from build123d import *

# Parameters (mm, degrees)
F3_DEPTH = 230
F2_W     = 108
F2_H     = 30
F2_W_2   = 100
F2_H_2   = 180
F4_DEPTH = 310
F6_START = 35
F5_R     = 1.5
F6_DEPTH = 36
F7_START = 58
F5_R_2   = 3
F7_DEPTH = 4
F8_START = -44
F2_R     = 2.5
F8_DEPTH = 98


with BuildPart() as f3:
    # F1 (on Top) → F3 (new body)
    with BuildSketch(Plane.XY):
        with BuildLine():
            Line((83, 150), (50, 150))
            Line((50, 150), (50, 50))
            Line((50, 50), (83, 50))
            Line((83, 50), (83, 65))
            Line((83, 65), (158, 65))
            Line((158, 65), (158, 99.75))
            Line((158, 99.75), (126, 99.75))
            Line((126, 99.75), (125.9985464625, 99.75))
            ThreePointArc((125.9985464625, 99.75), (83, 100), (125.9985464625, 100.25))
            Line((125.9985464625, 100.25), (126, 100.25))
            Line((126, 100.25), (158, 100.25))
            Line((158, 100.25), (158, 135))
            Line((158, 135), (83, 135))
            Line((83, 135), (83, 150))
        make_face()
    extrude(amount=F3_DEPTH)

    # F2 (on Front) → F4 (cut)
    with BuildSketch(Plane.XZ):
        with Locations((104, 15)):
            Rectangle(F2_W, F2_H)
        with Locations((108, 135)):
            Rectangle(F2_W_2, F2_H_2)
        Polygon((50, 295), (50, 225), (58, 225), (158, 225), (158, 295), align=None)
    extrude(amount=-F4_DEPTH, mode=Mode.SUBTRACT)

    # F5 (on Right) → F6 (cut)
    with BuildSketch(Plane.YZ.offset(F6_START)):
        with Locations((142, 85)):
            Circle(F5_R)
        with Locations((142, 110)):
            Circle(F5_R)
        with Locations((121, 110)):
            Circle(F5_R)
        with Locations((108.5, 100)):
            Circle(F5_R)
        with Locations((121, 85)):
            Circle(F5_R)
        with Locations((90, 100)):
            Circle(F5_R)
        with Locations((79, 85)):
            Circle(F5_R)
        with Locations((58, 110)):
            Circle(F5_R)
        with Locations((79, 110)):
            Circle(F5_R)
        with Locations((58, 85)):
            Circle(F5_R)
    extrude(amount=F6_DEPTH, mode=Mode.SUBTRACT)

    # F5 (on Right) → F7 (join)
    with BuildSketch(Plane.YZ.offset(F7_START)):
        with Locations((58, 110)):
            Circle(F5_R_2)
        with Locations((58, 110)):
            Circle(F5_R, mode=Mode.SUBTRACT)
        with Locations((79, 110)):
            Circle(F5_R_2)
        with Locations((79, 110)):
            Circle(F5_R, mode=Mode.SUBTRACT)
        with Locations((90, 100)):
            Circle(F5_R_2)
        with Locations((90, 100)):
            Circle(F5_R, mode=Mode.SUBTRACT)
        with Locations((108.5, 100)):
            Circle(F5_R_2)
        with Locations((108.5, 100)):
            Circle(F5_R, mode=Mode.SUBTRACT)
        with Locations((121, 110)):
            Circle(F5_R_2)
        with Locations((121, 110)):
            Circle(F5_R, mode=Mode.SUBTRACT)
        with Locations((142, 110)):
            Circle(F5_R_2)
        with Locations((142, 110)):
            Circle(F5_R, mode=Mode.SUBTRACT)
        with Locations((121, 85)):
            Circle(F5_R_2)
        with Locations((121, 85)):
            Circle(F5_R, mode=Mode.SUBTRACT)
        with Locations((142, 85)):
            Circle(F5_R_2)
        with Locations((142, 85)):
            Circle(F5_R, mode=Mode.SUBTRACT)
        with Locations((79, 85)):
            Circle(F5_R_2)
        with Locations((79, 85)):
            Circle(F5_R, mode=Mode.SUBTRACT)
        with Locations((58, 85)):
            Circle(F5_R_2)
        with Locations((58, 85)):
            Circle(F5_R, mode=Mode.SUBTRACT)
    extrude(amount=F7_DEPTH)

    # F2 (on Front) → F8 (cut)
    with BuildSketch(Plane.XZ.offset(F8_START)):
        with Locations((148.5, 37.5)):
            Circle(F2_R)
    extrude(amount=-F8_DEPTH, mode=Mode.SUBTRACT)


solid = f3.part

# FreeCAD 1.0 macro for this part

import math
import FreeCAD as App
import Part
import Sketcher

V = App.Vector

doc = App.newDocument("Part")
body = doc.addObject("PartDesign::Body", "Body")

# Sketch on XY plane
sketch1 = body.newObject("Sketcher::SketchObject", "Sketch")
sketch1.AttachmentSupport = (doc.getObject("XY_Plane"), [""])
sketch1.MapMode = "FlatFace"
sketch1.addGeometry([
    Part.LineSegment(V(83, 150, 0), V(50, 150, 0)),  # 0
    Part.LineSegment(V(50, 150, 0), V(50, 50, 0)),  # 1
    Part.LineSegment(V(50, 50, 0), V(83, 50, 0)),  # 2
    Part.LineSegment(V(83, 50, 0), V(83, 65, 0)),  # 3
    Part.LineSegment(V(83, 65, 0), V(158, 65, 0)),  # 4
    Part.LineSegment(V(158, 65, 0), V(158, 99.75, 0)),  # 5
    Part.LineSegment(V(158, 99.75, 0), V(125.998546, 99.75, 0)),  # 6
    Part.ArcOfCircle(Part.Circle(V(104.5, 100, 0), V(0, 0, 1), 21.5), math.radians(0.666245), math.radians(359.333755)),  # 7
    Part.LineSegment(V(125.998546, 100.25, 0), V(158, 100.25, 0)),  # 8
    Part.LineSegment(V(158, 100.25, 0), V(158, 135, 0)),  # 9
    Part.LineSegment(V(158, 135, 0), V(83, 135, 0)),  # 10
    Part.LineSegment(V(83, 135, 0), V(83, 150, 0)),  # 11
], False)
sketch1.addConstraint([
    Sketcher.Constraint("Coincident", 0, 2, 1, 1),
    Sketcher.Constraint("Coincident", 1, 2, 2, 1),
    Sketcher.Constraint("Coincident", 2, 2, 3, 1),
    Sketcher.Constraint("Coincident", 3, 2, 4, 1),
    Sketcher.Constraint("Coincident", 4, 2, 5, 1),
    Sketcher.Constraint("Coincident", 5, 2, 6, 1),
    Sketcher.Constraint("Coincident", 6, 2, 7, 2),
    Sketcher.Constraint("Coincident", 7, 1, 8, 1),
    Sketcher.Constraint("Coincident", 8, 2, 9, 1),
    Sketcher.Constraint("Coincident", 9, 2, 10, 1),
    Sketcher.Constraint("Coincident", 10, 2, 11, 1),
    Sketcher.Constraint("Coincident", 11, 2, 0, 1),
    Sketcher.Constraint("Horizontal", 0),
    Sketcher.Constraint("Vertical", 1),
    Sketcher.Constraint("Horizontal", 2),
    Sketcher.Constraint("Vertical", 3),
    Sketcher.Constraint("Horizontal", 4),
    Sketcher.Constraint("Vertical", 5),
    Sketcher.Constraint("Horizontal", 6),
    Sketcher.Constraint("Horizontal", 8),
    Sketcher.Constraint("Vertical", 9),
    Sketcher.Constraint("Horizontal", 10),
    Sketcher.Constraint("Vertical", 11),
    Sketcher.Constraint("Vertical", 6, 2, 7, 1),
    Sketcher.Constraint("Vertical", 5, 2, 8, 2),
    Sketcher.Constraint("Vertical", 3, 2, 10, 2),
    Sketcher.Constraint("Equal", 5, 9),
    Sketcher.Constraint("Equal", 3, 11),
    Sketcher.Constraint("Radius", 7, 21.5),
    Sketcher.Constraint("DistanceX", 0, 2, 0, 1, 33.0),
    Sketcher.Constraint("DistanceX", 4, 1, 4, 2, 75.0),
    Sketcher.Constraint("DistanceY", 1, 2, 1, 1, 100.0),
    Sketcher.Constraint("DistanceY", 3, 1, 3, 2, 15.0),
    Sketcher.Constraint("DistanceY", -1, 1, 7, 3, 100.0),
    Sketcher.Constraint("DistanceX", -1, 1, 0, 2, 50.0),
    Sketcher.Constraint("DistanceY", 5, 1, 5, 2, 34.75),
    Sketcher.Constraint("DistanceX", -1, 1, 7, 3, 104.5),
])
pad1 = body.newObject("PartDesign::Pad", "Pad")
pad1.Profile = sketch1
pad1.Length = 230

# Sketch on XZ plane
sketch2 = body.newObject("Sketcher::SketchObject", "Sketch001")
sketch2.AttachmentSupport = (doc.getObject("XZ_Plane"), [""])
sketch2.MapMode = "FlatFace"
sketch2.addGeometry([
    Part.LineSegment(V(50, 30, 0), V(50, 0, 0)),  # 0
    Part.LineSegment(V(50, 0, 0), V(158, 0, 0)),  # 1
    Part.LineSegment(V(158, 0, 0), V(158, 30, 0)),  # 2
    Part.LineSegment(V(158, 30, 0), V(50, 30, 0)),  # 3
    Part.LineSegment(V(58, 225, 0), V(58, 45, 0)),  # 4
    Part.LineSegment(V(58, 45, 0), V(158, 45, 0)),  # 5
    Part.LineSegment(V(158, 45, 0), V(158, 295, 0)),  # 6
    Part.LineSegment(V(158, 295, 0), V(50, 295, 0)),  # 7
    Part.LineSegment(V(50, 295, 0), V(50, 225, 0)),  # 8
    Part.LineSegment(V(50, 225, 0), V(58, 225, 0)),  # 9
], False)
sketch2.addConstraint([
    Sketcher.Constraint("Coincident", 0, 2, 1, 1),
    Sketcher.Constraint("Coincident", 1, 2, 2, 1),
    Sketcher.Constraint("Coincident", 2, 2, 3, 1),
    Sketcher.Constraint("Coincident", 3, 2, 0, 1),
    Sketcher.Constraint("Coincident", 4, 2, 5, 1),
    Sketcher.Constraint("Coincident", 5, 2, 6, 1),
    Sketcher.Constraint("Coincident", 6, 2, 7, 1),
    Sketcher.Constraint("Coincident", 7, 2, 8, 1),
    Sketcher.Constraint("Coincident", 8, 2, 9, 1),
    Sketcher.Constraint("Coincident", 9, 2, 4, 1),
    Sketcher.Constraint("Vertical", 0),
    Sketcher.Constraint("Horizontal", 1),
    Sketcher.Constraint("Vertical", 2),
    Sketcher.Constraint("Horizontal", 3),
    Sketcher.Constraint("Vertical", 4),
    Sketcher.Constraint("Horizontal", 5),
    Sketcher.Constraint("Vertical", 6),
    Sketcher.Constraint("Horizontal", 7),
    Sketcher.Constraint("Vertical", 8),
    Sketcher.Constraint("Horizontal", 9),
    Sketcher.Constraint("PointOnObject", 0, 2, -1),
    Sketcher.Constraint("Vertical", 2, 2, 5, 2),
    Sketcher.Constraint("Vertical", 3, 2, 7, 2),
    Sketcher.Constraint("DistanceX", 1, 1, 1, 2, 108.0),
    Sketcher.Constraint("DistanceX", 5, 1, 5, 2, 100.0),
    Sketcher.Constraint("DistanceY", 0, 2, 0, 1, 30.0),
    Sketcher.Constraint("DistanceY", 4, 2, 4, 1, 180.0),
    Sketcher.Constraint("DistanceY", 6, 1, 6, 2, 250.0),
    Sketcher.Constraint("DistanceX", -1, 1, 0, 2, 50.0),
    Sketcher.Constraint("DistanceY", -1, 1, 4, 2, 45.0),
])
pocket1 = body.newObject("PartDesign::Pocket", "Pocket")
pocket1.Profile = sketch2
pocket1.Length = 310

# Sketch on YZ plane
sketch3 = body.newObject("Sketcher::SketchObject", "Sketch002")
sketch3.AttachmentSupport = (doc.getObject("YZ_Plane"), [""])
sketch3.MapMode = "FlatFace"
sketch3.AttachmentOffset = App.Placement(V(0, 0, 35), App.Rotation())
sketch3.addGeometry([
    Part.Circle(V(142, 85, 0), V(0, 0, 1), 1.5),  # 0
    Part.Circle(V(142, 110, 0), V(0, 0, 1), 1.5),  # 1
    Part.Circle(V(121, 110, 0), V(0, 0, 1), 1.5),  # 2
    Part.Circle(V(108.5, 100, 0), V(0, 0, 1), 1.5),  # 3
    Part.Circle(V(121, 85, 0), V(0, 0, 1), 1.5),  # 4
    Part.Circle(V(90, 100, 0), V(0, 0, 1), 1.5),  # 5
    Part.Circle(V(79, 85, 0), V(0, 0, 1), 1.5),  # 6
    Part.Circle(V(58, 110, 0), V(0, 0, 1), 1.5),  # 7
    Part.Circle(V(79, 110, 0), V(0, 0, 1), 1.5),  # 8
    Part.Circle(V(58, 85, 0), V(0, 0, 1), 1.5),  # 9
], False)
sketch3.addConstraint([
    Sketcher.Constraint("Equal", 0, 1),
    Sketcher.Constraint("Equal", 1, 2),
    Sketcher.Constraint("Equal", 2, 3),
    Sketcher.Constraint("Equal", 3, 4),
    Sketcher.Constraint("Equal", 4, 5),
    Sketcher.Constraint("Equal", 5, 6),
    Sketcher.Constraint("Equal", 6, 7),
    Sketcher.Constraint("Equal", 7, 8),
    Sketcher.Constraint("Equal", 8, 9),
    Sketcher.Constraint("Horizontal", 1, 3, 2, 3),
    Sketcher.Constraint("Horizontal", 0, 3, 4, 3),
    Sketcher.Constraint("Horizontal", 3, 3, 5, 3),
    Sketcher.Constraint("Horizontal", 4, 3, 6, 3),
    Sketcher.Constraint("Horizontal", 2, 3, 7, 3),
    Sketcher.Constraint("Horizontal", 7, 3, 8, 3),
    Sketcher.Constraint("Horizontal", 6, 3, 9, 3),
    Sketcher.Constraint("Vertical", 0, 3, 1, 3),
    Sketcher.Constraint("Vertical", 2, 3, 4, 3),
    Sketcher.Constraint("Vertical", 6, 3, 8, 3),
    Sketcher.Constraint("Vertical", 7, 3, 9, 3),
    Sketcher.Constraint("Diameter", 0, 3.0),
    Sketcher.Constraint("DistanceX", -1, 1, 0, 3, 142.0),
    Sketcher.Constraint("DistanceY", -1, 1, 0, 3, 85.0),
    Sketcher.Constraint("DistanceY", -1, 1, 1, 3, 110.0),
    Sketcher.Constraint("DistanceX", -1, 1, 2, 3, 121.0),
    Sketcher.Constraint("DistanceY", -1, 1, 3, 3, 100.0),
    Sketcher.Constraint("DistanceX", -1, 1, 5, 3, 90.0),
    Sketcher.Constraint("DistanceX", -1, 1, 6, 3, 79.0),
    Sketcher.Constraint("DistanceX", -1, 1, 7, 3, 58.0),
    Sketcher.Constraint("DistanceX", -1, 1, 3, 3, 108.5),
])
pocket2 = body.newObject("PartDesign::Pocket", "Pocket001")
pocket2.Profile = sketch3
pocket2.Length = 36
pocket2.Reversed = True

# Sketch on YZ plane
sketch4 = body.newObject("Sketcher::SketchObject", "Sketch003")
sketch4.AttachmentSupport = (doc.getObject("YZ_Plane"), [""])
sketch4.MapMode = "FlatFace"
sketch4.AttachmentOffset = App.Placement(V(0, 0, 58), App.Rotation())
sketch4.addGeometry([
    Part.Circle(V(58, 110, 0), V(0, 0, 1), 3),  # 0
    Part.Circle(V(58, 110, 0), V(0, 0, 1), 1.5),  # 1
    Part.Circle(V(79, 110, 0), V(0, 0, 1), 3),  # 2
    Part.Circle(V(79, 110, 0), V(0, 0, 1), 1.5),  # 3
    Part.Circle(V(90, 100, 0), V(0, 0, 1), 3),  # 4
    Part.Circle(V(90, 100, 0), V(0, 0, 1), 1.5),  # 5
    Part.Circle(V(108.5, 100, 0), V(0, 0, 1), 3),  # 6
    Part.Circle(V(108.5, 100, 0), V(0, 0, 1), 1.5),  # 7
    Part.Circle(V(121, 110, 0), V(0, 0, 1), 3),  # 8
    Part.Circle(V(121, 110, 0), V(0, 0, 1), 1.5),  # 9
    Part.Circle(V(142, 110, 0), V(0, 0, 1), 3),  # 10
    Part.Circle(V(142, 110, 0), V(0, 0, 1), 1.5),  # 11
    Part.Circle(V(121, 85, 0), V(0, 0, 1), 3),  # 12
    Part.Circle(V(121, 85, 0), V(0, 0, 1), 1.5),  # 13
    Part.Circle(V(142, 85, 0), V(0, 0, 1), 3),  # 14
    Part.Circle(V(142, 85, 0), V(0, 0, 1), 1.5),  # 15
    Part.Circle(V(79, 85, 0), V(0, 0, 1), 3),  # 16
    Part.Circle(V(79, 85, 0), V(0, 0, 1), 1.5),  # 17
    Part.Circle(V(58, 85, 0), V(0, 0, 1), 3),  # 18
    Part.Circle(V(58, 85, 0), V(0, 0, 1), 1.5),  # 19
], False)
sketch4.addConstraint([
    Sketcher.Constraint("Coincident", 1, 3, 0, 3),
    Sketcher.Constraint("Coincident", 3, 3, 2, 3),
    Sketcher.Constraint("Coincident", 5, 3, 4, 3),
    Sketcher.Constraint("Coincident", 7, 3, 6, 3),
    Sketcher.Constraint("Coincident", 9, 3, 8, 3),
    Sketcher.Constraint("Coincident", 11, 3, 10, 3),
    Sketcher.Constraint("Coincident", 13, 3, 12, 3),
    Sketcher.Constraint("Coincident", 15, 3, 14, 3),
    Sketcher.Constraint("Coincident", 17, 3, 16, 3),
    Sketcher.Constraint("Coincident", 19, 3, 18, 3),
    Sketcher.Constraint("Equal", 0, 2),
    Sketcher.Constraint("Equal", 1, 3),
    Sketcher.Constraint("Equal", 2, 4),
    Sketcher.Constraint("Equal", 3, 5),
    Sketcher.Constraint("Equal", 4, 6),
    Sketcher.Constraint("Equal", 5, 7),
    Sketcher.Constraint("Equal", 6, 8),
    Sketcher.Constraint("Equal", 7, 9),
    Sketcher.Constraint("Equal", 8, 10),
    Sketcher.Constraint("Equal", 9, 11),
    Sketcher.Constraint("Equal", 10, 12),
    Sketcher.Constraint("Equal", 11, 13),
    Sketcher.Constraint("Equal", 12, 14),
    Sketcher.Constraint("Equal", 13, 15),
    Sketcher.Constraint("Equal", 14, 16),
    Sketcher.Constraint("Equal", 15, 17),
    Sketcher.Constraint("Equal", 16, 18),
    Sketcher.Constraint("Equal", 17, 19),
    Sketcher.Constraint("Horizontal", 1, 3, 2, 3),
    Sketcher.Constraint("Horizontal", 5, 3, 6, 3),
    Sketcher.Constraint("Horizontal", 3, 3, 8, 3),
    Sketcher.Constraint("Horizontal", 9, 3, 10, 3),
    Sketcher.Constraint("Horizontal", 13, 3, 14, 3),
    Sketcher.Constraint("Horizontal", 15, 3, 16, 3),
    Sketcher.Constraint("Horizontal", 17, 3, 18, 3),
    Sketcher.Constraint("Vertical", 9, 3, 12, 3),
    Sketcher.Constraint("Vertical", 11, 3, 14, 3),
    Sketcher.Constraint("Vertical", 3, 3, 16, 3),
    Sketcher.Constraint("Vertical", 1, 3, 18, 3),
    Sketcher.Constraint("Diameter", 0, 6.0),
    Sketcher.Constraint("Diameter", 1, 3.0),
    Sketcher.Constraint("DistanceX", -1, 1, 0, 3, 58.0),
    Sketcher.Constraint("DistanceY", -1, 1, 0, 3, 110.0),
    Sketcher.Constraint("DistanceX", -1, 1, 2, 3, 79.0),
    Sketcher.Constraint("DistanceX", -1, 1, 4, 3, 90.0),
    Sketcher.Constraint("DistanceY", -1, 1, 4, 3, 100.0),
    Sketcher.Constraint("DistanceX", -1, 1, 8, 3, 121.0),
    Sketcher.Constraint("DistanceX", -1, 1, 10, 3, 142.0),
    Sketcher.Constraint("DistanceY", -1, 1, 12, 3, 85.0),
    Sketcher.Constraint("DistanceX", -1, 1, 6, 3, 108.5),
])
pad2 = body.newObject("PartDesign::Pad", "Pad001")
pad2.Profile = sketch4
pad2.Length = 4

# Sketch on XZ plane
sketch5 = body.newObject("Sketcher::SketchObject", "Sketch004")
sketch5.AttachmentSupport = (doc.getObject("XZ_Plane"), [""])
sketch5.MapMode = "FlatFace"
sketch5.AttachmentOffset = App.Placement(V(0, 0, -44), App.Rotation())
sketch5.addGeometry(Part.Circle(V(148.5, 37.5, 0), V(0, 0, 1), 2.5), False)
sketch5.addConstraint([
    Sketcher.Constraint("Diameter", 0, 5.0),
    Sketcher.Constraint("DistanceX", -1, 1, 0, 3, 148.5),
    Sketcher.Constraint("DistanceY", -1, 1, 0, 3, 37.5),
])
pocket3 = body.newObject("PartDesign::Pocket", "Pocket002")
pocket3.Profile = sketch5
pocket3.Length = 98

doc.recompute()
